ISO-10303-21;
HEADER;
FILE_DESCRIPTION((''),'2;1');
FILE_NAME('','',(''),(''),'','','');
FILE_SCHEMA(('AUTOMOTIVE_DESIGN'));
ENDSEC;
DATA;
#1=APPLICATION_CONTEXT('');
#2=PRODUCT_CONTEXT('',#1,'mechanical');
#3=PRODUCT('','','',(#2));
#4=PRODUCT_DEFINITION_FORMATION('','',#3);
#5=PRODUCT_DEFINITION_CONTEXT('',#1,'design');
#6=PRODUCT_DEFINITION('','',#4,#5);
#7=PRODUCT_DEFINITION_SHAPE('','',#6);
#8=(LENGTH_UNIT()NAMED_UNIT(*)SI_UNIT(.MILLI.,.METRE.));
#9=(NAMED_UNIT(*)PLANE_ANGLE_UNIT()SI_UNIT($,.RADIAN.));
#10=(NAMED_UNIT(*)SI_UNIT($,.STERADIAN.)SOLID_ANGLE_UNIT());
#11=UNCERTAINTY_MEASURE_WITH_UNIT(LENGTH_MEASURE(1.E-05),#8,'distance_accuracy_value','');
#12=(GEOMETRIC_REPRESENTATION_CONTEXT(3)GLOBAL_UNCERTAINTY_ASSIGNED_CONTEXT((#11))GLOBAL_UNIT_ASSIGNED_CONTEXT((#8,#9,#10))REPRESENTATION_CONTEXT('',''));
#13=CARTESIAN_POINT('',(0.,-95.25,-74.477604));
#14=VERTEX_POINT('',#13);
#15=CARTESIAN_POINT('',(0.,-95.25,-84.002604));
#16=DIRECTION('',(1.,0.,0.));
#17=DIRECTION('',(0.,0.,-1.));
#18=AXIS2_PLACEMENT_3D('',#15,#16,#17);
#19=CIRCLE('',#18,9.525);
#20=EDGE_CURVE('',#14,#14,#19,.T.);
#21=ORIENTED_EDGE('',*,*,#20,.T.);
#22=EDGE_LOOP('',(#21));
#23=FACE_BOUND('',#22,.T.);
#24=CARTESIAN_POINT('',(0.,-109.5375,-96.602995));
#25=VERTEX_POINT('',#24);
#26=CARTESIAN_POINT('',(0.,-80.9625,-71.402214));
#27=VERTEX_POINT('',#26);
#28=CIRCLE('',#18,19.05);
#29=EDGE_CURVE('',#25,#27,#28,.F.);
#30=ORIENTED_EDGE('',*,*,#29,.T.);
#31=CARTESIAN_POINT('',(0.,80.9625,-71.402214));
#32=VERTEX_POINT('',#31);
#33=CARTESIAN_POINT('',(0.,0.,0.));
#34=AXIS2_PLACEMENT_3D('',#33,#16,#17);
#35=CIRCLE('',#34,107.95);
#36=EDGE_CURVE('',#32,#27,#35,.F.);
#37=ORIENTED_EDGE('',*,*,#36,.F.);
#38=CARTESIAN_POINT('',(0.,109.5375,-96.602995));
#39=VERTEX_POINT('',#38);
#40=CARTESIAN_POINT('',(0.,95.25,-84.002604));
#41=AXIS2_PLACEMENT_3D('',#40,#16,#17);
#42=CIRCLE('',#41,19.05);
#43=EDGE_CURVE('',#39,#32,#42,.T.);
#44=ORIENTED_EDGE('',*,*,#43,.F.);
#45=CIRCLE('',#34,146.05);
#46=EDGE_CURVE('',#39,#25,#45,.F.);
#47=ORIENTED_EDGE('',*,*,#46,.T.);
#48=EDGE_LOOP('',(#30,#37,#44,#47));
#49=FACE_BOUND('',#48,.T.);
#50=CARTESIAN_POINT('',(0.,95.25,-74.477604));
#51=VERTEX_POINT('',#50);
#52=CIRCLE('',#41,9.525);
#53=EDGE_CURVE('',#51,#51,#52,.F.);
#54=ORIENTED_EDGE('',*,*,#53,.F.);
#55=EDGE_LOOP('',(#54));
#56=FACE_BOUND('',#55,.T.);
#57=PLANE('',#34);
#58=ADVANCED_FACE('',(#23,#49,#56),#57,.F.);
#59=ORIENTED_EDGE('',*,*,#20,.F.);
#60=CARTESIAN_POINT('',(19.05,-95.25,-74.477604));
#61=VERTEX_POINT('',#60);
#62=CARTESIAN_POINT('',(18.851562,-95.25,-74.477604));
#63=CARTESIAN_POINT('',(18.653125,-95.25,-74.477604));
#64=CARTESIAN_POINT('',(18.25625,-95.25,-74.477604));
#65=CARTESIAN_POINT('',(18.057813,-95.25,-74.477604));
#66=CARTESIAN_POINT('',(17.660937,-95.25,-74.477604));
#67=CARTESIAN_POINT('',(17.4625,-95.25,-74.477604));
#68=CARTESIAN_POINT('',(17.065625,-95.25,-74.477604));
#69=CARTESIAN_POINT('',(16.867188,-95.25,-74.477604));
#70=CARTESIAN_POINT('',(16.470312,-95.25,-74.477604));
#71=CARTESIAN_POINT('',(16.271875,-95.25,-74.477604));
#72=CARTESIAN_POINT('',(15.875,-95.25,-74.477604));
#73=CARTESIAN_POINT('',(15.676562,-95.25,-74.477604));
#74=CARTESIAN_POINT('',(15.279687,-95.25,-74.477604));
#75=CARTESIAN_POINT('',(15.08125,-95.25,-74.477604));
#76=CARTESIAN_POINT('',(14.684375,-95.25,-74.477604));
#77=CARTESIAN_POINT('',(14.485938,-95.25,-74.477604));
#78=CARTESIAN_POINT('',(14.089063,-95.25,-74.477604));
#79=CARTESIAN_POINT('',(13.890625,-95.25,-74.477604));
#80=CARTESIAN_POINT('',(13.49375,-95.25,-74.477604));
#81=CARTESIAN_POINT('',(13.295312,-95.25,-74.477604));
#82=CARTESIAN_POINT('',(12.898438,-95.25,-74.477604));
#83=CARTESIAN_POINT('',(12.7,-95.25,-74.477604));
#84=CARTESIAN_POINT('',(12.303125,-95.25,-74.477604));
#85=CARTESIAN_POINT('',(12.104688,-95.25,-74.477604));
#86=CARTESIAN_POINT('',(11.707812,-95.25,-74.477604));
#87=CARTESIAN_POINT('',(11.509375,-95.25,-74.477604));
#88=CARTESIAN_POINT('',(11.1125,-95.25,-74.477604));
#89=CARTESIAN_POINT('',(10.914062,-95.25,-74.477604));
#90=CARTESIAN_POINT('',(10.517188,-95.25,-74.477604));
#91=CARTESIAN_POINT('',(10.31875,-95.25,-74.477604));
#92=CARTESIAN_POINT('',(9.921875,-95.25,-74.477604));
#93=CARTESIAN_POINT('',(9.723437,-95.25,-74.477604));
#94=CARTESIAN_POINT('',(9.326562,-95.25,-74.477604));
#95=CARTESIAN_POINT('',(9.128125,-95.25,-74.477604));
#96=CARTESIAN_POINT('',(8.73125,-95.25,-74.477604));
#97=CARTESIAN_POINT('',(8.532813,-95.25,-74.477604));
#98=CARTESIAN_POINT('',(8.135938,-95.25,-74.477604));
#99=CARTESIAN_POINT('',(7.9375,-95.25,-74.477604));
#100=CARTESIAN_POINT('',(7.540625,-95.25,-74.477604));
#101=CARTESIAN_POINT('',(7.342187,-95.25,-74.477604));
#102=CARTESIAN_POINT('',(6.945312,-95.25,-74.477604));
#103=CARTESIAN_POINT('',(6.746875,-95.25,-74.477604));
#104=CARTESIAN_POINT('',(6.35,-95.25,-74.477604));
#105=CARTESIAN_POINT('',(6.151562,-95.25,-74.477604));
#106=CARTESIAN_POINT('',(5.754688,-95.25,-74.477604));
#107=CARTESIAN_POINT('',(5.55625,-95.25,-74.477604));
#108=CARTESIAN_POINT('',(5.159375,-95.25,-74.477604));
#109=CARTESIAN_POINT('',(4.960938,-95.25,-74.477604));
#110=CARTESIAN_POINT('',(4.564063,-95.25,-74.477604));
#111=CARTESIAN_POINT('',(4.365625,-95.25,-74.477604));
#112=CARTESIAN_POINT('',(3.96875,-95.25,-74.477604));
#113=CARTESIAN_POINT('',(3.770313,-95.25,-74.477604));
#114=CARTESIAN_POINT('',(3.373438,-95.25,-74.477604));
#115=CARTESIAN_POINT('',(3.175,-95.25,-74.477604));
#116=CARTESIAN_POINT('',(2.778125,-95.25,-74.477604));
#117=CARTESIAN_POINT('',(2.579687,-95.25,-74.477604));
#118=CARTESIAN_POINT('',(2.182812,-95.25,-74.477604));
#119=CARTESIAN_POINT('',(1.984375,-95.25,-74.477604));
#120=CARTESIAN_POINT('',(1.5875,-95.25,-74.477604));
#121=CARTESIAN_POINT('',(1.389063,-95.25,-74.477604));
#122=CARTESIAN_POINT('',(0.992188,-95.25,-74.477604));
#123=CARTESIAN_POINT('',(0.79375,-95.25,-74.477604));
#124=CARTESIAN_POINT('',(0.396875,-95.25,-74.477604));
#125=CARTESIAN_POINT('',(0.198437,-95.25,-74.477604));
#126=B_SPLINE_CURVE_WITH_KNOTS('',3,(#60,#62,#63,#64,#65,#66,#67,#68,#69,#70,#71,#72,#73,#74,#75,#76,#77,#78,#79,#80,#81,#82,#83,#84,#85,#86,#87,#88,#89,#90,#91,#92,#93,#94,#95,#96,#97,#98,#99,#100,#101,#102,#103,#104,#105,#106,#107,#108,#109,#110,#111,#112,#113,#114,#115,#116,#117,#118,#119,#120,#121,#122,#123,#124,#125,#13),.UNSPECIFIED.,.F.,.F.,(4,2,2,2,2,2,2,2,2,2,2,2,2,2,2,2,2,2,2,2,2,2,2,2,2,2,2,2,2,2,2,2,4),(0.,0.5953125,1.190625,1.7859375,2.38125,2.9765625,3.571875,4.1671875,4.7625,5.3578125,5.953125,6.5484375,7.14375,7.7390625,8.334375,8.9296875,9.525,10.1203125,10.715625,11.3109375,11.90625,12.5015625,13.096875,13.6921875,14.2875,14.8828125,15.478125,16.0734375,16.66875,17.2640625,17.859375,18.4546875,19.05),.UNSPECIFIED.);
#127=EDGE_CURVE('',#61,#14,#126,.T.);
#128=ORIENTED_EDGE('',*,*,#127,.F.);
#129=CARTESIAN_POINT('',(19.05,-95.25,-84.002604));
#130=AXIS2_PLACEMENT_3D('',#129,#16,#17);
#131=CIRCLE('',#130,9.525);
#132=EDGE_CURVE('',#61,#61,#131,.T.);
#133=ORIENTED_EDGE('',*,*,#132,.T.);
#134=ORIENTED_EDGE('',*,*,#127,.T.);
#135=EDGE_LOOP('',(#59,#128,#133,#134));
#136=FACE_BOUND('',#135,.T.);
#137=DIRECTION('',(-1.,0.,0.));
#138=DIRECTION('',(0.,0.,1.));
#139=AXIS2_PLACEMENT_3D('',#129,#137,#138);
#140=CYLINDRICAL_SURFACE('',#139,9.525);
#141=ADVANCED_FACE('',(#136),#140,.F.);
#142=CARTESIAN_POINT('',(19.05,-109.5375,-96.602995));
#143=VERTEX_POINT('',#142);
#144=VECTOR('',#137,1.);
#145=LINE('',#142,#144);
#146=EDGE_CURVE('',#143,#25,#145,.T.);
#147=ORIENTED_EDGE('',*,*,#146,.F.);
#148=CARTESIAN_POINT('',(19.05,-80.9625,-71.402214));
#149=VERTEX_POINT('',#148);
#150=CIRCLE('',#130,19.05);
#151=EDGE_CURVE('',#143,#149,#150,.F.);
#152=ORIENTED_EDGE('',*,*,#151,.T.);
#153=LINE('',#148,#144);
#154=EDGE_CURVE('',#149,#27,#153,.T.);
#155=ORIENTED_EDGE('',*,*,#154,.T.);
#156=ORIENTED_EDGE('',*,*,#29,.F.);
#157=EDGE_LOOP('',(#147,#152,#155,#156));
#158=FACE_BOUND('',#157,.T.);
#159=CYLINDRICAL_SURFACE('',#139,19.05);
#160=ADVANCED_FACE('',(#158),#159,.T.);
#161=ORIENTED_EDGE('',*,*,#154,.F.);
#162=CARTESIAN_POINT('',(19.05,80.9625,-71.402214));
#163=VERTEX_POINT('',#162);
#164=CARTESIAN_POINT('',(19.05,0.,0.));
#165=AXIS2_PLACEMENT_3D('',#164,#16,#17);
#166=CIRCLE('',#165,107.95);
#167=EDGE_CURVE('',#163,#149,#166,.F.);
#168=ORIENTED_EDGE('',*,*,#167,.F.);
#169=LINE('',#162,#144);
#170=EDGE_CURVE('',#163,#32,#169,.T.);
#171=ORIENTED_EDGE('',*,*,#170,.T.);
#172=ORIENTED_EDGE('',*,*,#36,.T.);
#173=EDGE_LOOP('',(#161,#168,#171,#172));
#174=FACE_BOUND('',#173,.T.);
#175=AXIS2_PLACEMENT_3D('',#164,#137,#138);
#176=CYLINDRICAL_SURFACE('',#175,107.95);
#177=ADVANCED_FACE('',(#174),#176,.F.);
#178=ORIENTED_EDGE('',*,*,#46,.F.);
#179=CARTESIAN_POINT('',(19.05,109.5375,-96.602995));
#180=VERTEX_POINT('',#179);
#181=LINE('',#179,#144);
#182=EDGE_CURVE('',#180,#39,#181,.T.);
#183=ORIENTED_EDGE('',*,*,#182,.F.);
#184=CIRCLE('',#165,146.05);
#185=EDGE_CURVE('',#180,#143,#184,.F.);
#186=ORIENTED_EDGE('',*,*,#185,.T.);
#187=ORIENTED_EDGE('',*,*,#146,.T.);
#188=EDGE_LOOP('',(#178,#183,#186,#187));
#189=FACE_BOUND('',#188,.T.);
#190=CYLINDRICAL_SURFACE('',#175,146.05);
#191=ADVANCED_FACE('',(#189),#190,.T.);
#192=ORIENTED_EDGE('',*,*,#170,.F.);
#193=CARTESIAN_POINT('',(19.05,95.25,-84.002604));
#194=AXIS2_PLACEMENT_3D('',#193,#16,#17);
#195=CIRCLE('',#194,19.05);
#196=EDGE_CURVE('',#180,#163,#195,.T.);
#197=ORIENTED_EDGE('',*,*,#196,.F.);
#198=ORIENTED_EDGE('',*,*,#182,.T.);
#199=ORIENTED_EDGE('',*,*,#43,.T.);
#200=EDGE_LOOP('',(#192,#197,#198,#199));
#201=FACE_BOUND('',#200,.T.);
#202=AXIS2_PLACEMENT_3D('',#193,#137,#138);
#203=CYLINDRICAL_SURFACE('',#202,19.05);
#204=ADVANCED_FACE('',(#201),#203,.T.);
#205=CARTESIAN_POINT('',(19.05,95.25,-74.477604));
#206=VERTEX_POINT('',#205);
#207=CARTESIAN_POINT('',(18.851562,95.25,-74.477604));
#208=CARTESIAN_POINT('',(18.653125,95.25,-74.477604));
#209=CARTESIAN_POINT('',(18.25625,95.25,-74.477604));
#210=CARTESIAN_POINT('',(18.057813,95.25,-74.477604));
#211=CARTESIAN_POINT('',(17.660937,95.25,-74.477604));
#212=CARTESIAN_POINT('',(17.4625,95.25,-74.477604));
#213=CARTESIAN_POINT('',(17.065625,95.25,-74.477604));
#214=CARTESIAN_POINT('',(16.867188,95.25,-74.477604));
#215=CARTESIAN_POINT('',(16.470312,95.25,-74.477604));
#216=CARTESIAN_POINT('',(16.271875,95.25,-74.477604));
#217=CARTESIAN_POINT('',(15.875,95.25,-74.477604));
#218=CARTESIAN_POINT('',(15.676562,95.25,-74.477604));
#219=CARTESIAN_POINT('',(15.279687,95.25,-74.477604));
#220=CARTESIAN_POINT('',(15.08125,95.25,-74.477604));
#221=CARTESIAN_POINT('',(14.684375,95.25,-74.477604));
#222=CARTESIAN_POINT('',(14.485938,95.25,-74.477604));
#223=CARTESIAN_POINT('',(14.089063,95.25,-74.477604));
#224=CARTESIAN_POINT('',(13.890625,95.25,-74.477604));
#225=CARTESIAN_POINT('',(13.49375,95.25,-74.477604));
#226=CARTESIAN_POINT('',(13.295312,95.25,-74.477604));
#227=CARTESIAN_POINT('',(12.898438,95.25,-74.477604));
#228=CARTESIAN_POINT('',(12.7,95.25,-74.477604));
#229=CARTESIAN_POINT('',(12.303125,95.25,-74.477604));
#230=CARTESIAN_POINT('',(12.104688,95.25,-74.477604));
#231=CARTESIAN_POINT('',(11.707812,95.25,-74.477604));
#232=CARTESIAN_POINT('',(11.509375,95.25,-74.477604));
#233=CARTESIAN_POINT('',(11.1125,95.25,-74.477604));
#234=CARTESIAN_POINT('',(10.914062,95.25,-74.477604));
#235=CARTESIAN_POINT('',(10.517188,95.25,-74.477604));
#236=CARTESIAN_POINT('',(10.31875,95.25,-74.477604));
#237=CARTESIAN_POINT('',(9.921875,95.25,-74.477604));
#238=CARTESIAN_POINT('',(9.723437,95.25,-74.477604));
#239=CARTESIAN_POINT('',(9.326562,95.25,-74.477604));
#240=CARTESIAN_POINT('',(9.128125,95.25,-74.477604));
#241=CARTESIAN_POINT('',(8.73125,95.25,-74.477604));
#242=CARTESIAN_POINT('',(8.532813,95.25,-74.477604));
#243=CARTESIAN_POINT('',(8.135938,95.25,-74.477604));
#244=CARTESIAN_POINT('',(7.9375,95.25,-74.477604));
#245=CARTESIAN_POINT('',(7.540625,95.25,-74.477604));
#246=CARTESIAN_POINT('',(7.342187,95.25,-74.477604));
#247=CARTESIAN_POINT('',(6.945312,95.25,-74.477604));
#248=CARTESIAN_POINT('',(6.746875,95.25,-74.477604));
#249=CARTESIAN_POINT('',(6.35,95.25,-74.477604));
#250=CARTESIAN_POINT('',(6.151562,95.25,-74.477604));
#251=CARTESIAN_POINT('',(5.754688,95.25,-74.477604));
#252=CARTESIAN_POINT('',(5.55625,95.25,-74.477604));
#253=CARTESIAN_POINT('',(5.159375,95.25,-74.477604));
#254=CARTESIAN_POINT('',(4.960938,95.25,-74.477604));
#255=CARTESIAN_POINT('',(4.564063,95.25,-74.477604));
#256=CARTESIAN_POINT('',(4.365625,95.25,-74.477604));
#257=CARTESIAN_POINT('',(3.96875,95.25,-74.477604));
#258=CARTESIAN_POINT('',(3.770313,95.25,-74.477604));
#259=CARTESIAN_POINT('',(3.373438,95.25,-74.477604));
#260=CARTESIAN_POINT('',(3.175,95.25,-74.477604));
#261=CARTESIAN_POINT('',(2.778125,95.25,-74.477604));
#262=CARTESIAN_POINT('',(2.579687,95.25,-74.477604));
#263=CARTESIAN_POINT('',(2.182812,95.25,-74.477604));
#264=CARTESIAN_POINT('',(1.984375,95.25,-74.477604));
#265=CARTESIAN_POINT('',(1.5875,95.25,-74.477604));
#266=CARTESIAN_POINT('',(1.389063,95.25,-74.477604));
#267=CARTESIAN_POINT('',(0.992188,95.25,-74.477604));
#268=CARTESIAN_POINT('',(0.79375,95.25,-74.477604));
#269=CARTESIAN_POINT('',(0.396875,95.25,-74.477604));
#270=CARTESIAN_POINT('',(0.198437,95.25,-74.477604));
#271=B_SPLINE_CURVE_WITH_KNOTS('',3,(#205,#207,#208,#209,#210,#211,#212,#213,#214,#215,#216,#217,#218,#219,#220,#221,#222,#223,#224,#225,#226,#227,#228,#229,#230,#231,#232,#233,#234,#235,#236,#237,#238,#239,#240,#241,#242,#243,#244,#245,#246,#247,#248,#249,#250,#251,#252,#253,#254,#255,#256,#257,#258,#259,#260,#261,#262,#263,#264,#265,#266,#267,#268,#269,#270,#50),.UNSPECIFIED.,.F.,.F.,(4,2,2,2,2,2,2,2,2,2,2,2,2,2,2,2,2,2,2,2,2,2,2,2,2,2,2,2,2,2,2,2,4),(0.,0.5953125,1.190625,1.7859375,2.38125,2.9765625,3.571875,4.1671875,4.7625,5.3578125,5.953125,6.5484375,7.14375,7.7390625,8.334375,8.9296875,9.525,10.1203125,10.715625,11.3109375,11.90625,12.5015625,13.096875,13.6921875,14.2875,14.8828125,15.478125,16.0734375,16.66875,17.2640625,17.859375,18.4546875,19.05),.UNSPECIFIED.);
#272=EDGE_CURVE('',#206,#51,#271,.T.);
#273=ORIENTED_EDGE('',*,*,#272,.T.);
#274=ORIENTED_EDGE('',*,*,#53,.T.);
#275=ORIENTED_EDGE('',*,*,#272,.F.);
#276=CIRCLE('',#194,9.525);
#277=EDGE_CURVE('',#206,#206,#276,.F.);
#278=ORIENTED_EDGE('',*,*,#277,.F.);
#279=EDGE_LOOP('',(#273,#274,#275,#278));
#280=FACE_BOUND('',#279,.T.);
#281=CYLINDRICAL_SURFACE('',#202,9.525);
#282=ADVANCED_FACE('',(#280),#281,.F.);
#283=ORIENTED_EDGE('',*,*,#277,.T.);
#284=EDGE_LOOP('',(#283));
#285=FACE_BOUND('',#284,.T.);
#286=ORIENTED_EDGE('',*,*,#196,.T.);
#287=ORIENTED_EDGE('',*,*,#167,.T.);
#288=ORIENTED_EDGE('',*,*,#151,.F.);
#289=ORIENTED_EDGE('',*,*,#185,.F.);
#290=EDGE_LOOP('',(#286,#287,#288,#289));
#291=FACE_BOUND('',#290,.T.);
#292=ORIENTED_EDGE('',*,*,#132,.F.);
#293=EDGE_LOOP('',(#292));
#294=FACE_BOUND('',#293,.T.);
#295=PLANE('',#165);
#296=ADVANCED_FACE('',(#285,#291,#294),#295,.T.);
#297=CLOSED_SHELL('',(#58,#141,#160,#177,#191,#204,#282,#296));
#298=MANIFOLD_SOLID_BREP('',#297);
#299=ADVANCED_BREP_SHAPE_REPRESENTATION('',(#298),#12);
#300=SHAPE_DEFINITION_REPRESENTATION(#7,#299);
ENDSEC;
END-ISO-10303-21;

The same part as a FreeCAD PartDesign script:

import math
import FreeCAD as App
import Part
import Sketcher

V = App.Vector
Q = App.Units.Quantity

doc = App.newDocument("Part")
params = doc.addObject("Spreadsheet::Sheet", "Params")
for row, (alias, value) in enumerate([
    ("sketch1_diameter", "0.75 in"),
    ("sketch1_radius", "5.75 in"),
    ("sketch1_radius2", "0.75 in"),
    ("pad1_length", "0.75 in"),
], start=1):
    params.set(f"A{row}", alias)
    params.set(f"B{row}", "=" + value)
    params.setAlias(f"B{row}", alias)

body = doc.addObject("PartDesign::Body", "Body")

# Sketch on YZ plane
sketch1 = doc.addObject("Sketcher::SketchObject", "Sketch")
body.addObject(sketch1)
sketch1.AttachmentSupport = (doc.YZ_Plane, [""])
sketch1.MapMode = "FlatFace"
sketch1.addGeometry([
    Part.ArcOfCircle(Part.Circle(V(0, 0, 0), V(0, 0, 1), 146), math.radians(-139), math.radians(-41)),  # 0
    Part.ArcOfCircle(Part.Circle(V(95, -84, 0), V(0, 0, 1), 19), math.radians(-41), math.radians(139)),  # 1
    Part.ArcOfCircle(Part.Circle(V(0, 0, 0), V(0, 0, 1), 108), math.radians(-139), math.radians(-41)),  # 2
    Part.ArcOfCircle(Part.Circle(V(-95, -84, 0), V(0, 0, 1), 19), math.radians(41), math.radians(221)),  # 3
    Part.Circle(V(95, -84, 0), V(0, 0, 1), 10),  # 4
    Part.Circle(V(-95, -84, 0), V(0, 0, 1), 10),  # 5
], False)
sketch1.addConstraint([
    Sketcher.Constraint("Tangent", 0, 2, 1, 1),
    Sketcher.Constraint("Tangent", 1, 2, 2, 2),
    Sketcher.Constraint("Tangent", 2, 1, 3, 1),
    Sketcher.Constraint("Tangent", 3, 2, 0, 1),
    Sketcher.Constraint("Coincident", 0, 3, -1, 1),
    Sketcher.Constraint("Coincident", 2, 3, -1, 1),
    Sketcher.Constraint("Coincident", 4, 3, 1, 3),
    Sketcher.Constraint("Coincident", 5, 3, 3, 3),
    Sketcher.Constraint("Equal", 4, 5),
    Sketcher.Constraint("Horizontal", 1, 3, 3, 3),
    Sketcher.Constraint("Diameter", 4, Q("0.75 in")),
    Sketcher.Constraint("Radius", 0, Q("5.75 in")),
    Sketcher.Constraint("Radius", 1, Q("0.75 in")),
    Sketcher.Constraint("DistanceX", 3, 3, 1, 3, Q("7.5 in")),
])
sketch1.setExpression("Constraints[10]", "Params.sketch1_diameter")
sketch1.setExpression("Constraints[11]", "Params.sketch1_radius")
sketch1.setExpression("Constraints[12]", "Params.sketch1_radius2")
pad1 = doc.addObject("PartDesign::Pad", "Pad")
body.addObject(pad1)
pad1.Profile = sketch1
pad1.setExpression("Length", "Params.pad1_length")

doc.recompute()
